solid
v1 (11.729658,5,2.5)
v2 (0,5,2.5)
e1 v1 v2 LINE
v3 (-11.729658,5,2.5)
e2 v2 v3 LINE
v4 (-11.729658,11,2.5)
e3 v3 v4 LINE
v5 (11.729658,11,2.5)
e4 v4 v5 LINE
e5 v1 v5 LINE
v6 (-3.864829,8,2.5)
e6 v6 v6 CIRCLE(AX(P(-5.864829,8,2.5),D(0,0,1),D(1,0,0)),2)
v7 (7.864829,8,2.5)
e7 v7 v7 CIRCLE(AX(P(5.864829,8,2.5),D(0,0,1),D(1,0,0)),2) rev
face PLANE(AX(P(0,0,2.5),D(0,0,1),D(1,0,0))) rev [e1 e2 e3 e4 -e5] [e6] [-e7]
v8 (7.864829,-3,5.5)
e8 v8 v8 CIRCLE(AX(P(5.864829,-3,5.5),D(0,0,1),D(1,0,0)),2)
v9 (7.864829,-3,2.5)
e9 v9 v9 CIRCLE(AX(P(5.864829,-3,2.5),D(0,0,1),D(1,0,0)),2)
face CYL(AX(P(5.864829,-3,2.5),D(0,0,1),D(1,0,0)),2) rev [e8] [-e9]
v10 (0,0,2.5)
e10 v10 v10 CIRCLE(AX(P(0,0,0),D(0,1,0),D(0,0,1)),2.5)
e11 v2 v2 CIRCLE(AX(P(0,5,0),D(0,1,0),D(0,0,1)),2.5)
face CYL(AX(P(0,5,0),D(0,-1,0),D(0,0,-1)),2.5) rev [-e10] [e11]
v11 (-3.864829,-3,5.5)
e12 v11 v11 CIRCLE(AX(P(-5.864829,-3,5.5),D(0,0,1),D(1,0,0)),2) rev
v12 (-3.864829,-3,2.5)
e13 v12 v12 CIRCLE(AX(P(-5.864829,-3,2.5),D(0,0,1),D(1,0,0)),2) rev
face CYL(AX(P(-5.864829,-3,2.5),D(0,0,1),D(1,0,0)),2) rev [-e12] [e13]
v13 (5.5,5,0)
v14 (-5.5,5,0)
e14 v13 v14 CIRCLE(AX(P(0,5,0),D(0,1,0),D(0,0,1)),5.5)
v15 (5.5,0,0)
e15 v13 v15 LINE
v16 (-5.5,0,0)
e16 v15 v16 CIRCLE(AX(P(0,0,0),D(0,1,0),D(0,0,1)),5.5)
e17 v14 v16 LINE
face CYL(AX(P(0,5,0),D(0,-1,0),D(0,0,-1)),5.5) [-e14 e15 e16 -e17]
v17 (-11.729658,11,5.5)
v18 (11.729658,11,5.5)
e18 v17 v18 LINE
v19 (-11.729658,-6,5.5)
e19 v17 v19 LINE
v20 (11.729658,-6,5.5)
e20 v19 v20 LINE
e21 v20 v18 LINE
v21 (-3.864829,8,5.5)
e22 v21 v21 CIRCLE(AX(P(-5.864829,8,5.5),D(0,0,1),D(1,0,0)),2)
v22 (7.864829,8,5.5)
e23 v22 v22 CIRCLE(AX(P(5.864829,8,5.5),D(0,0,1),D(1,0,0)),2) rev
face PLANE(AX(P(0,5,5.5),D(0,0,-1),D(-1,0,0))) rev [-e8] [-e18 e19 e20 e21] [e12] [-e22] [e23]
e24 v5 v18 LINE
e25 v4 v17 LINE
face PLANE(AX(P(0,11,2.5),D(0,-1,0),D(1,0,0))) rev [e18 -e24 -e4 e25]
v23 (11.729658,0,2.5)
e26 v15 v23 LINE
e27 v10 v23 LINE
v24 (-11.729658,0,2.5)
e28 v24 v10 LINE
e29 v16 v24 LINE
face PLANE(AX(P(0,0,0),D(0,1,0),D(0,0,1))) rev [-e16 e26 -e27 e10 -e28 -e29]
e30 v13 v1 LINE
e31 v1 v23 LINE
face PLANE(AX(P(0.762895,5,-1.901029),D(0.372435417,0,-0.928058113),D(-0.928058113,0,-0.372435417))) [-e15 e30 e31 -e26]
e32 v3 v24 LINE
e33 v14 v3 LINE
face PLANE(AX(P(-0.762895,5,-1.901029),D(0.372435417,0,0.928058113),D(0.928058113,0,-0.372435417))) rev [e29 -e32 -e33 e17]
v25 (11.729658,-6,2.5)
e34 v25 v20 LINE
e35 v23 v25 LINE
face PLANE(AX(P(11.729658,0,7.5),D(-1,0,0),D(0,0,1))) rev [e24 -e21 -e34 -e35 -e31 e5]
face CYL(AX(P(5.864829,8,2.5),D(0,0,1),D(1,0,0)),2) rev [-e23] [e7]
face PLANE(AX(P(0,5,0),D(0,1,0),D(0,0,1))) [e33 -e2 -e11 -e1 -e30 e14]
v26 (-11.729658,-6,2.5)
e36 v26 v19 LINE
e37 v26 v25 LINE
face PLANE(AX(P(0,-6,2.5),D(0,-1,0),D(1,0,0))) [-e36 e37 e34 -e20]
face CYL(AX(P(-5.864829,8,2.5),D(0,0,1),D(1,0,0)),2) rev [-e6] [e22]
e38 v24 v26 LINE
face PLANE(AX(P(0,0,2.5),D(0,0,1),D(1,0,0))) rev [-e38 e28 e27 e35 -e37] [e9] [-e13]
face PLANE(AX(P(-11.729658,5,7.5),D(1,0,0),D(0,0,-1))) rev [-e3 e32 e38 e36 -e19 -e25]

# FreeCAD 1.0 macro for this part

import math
import FreeCAD as App
import Part
import Sketcher

V = App.Vector
Q = App.Units.Quantity


def add_polygon(sketch, points):
    """Adds a closed chain of lines whose ends are joined by coincident constraints."""
    first, n = sketch.GeometryCount, len(points)
    for a, b in zip(points, points[1:] + points[:1]):
        sketch.addGeometry(Part.LineSegment(App.Vector(*a, 0), App.Vector(*b, 0)), False)
    for i in range(n):
        sketch.addConstraint(Sketcher.Constraint("Coincident", first + i, 2, first + (i + 1) % n, 1))

doc = App.newDocument("Part")
body = doc.addObject("PartDesign::Body", "Body")

sketch1 = body.newObject("Sketcher::SketchObject", "Sketch")
sketch1.AttachmentSupport = (doc.getObject("XZ_Plane"), [""])
sketch1.MapMode = "FlatFace"
sketch1.addGeometry(Part.ArcOfCircle(Part.Circle(V(0, 0, 0), V(0, 0, 1), 5.5), math.radians(180), math.radians(360)), False)
sketch1.addGeometry(Part.LineSegment(V(-5.5, 0, 0), V(-11.7, 2.5, 0)), False)
sketch1.addGeometry(Part.LineSegment(V(-11.7, 2.5, 0), V(-25.7, 2.5, 0)), False)
sketch1.addGeometry(Part.LineSegment(V(-25.7, 2.5, 0), V(-25.7, 5.5, 0)), False)
sketch1.addGeometry(Part.LineSegment(V(-25.7, 5.5, 0), V(25.7, 5.5, 0)), False)
sketch1.addGeometry(Part.LineSegment(V(25.7, 5.5, 0), V(25.7, 2.5, 0)), False)
sketch1.addGeometry(Part.LineSegment(V(25.7, 2.5, 0), V(11.7, 2.5, 0)), False)
sketch1.addGeometry(Part.LineSegment(V(11.7, 2.5, 0), V(5.5, 0, 0)), False)
sketch1.addGeometry(Part.ArcOfCircle(Part.Circle(V(0, 0, 0), V(0, 0, 1), 2.5), math.radians(0), math.radians(90)), False)
sketch1.addGeometry(Part.ArcOfCircle(Part.Circle(V(0, 0, 0), V(0, 0, 1), 2.5), math.radians(90), math.radians(360)), False)
sketch1.addConstraint(Sketcher.Constraint("Coincident", 0, 1, 1, 1))
sketch1.addConstraint(Sketcher.Constraint("Coincident", 1, 2, 2, 1))
sketch1.addConstraint(Sketcher.Constraint("Coincident", 2, 2, 3, 1))
sketch1.addConstraint(Sketcher.Constraint("Coincident", 3, 2, 4, 1))
sketch1.addConstraint(Sketcher.Constraint("Coincident", 4, 2, 5, 1))
sketch1.addConstraint(Sketcher.Constraint("Coincident", 5, 2, 6, 1))
sketch1.addConstraint(Sketcher.Constraint("Coincident", 6, 2, 7, 1))
sketch1.addConstraint(Sketcher.Constraint("Coincident", 7, 2, 0, 2))
sketch1.addConstraint(Sketcher.Constraint("Tangent", 8, 1, 9, 2))
sketch1.addConstraint(Sketcher.Constraint("Coincident", 9, 1, 8, 2))
sketch1.addConstraint(Sketcher.Constraint("Horizontal", 2))
sketch1.addConstraint(Sketcher.Constraint("Vertical", 3))
sketch1.addConstraint(Sketcher.Constraint("Horizontal", 4))
sketch1.addConstraint(Sketcher.Constraint("Vertical", 5))
sketch1.addConstraint(Sketcher.Constraint("Horizontal", 6))
sketch1.addConstraint(Sketcher.Constraint("Coincident", 0, 3, -1, 1))
sketch1.addConstraint(Sketcher.Constraint("Coincident", 8, 3, -1, 1))
sketch1.addConstraint(Sketcher.Constraint("Symmetric", 2, 2, 5, 2, -2))
sketch1.addConstraint(Sketcher.Constraint("PointOnObject", 0, 1, -1))
sketch1.addConstraint(Sketcher.Constraint("PointOnObject", 7, 2, -1))
sketch1.addConstraint(Sketcher.Constraint("PointOnObject", 8, 1, -1))
sketch1.addConstraint(Sketcher.Constraint("PointOnObject", 9, 1, -2))
sketch1.addConstraint(Sketcher.Constraint("Horizontal", 6, 2, 9, 1))
sketch1.addConstraint(Sketcher.Constraint("Equal", 2, 6))
sketch1.addConstraint(Sketcher.Constraint("Radius", 0, Q("5.5 mm")))
sketch1.addConstraint(Sketcher.Constraint("Radius", 8, Q("2.5 mm")))
sketch1.addConstraint(Sketcher.Constraint("DistanceY", 3, 1, 3, 2, Q("3 mm")))
sketch1.addConstraint(Sketcher.Constraint("DistanceX", 2, 2, 2, 1, Q("14.012374 mm")))
sketch1.addConstraint(Sketcher.Constraint("DistanceX", 4, 1, 4, 2, Q("51.484064 mm")))
pad1 = body.newObject("PartDesign::Pad", "Pad")
pad1.Profile = sketch1
pad1.Length = 5
pad1.Reversed = True

sketch2 = body.newObject("Sketcher::SketchObject", "Sketch001")
sketch2.AttachmentSupport = (doc.getObject("XY_Plane"), [""])
sketch2.MapMode = "FlatFace"
sketch2.AttachmentOffset = App.Placement(V(0, 0, 2.5), App.Rotation())
add_polygon(sketch2, [(25.7, 0), (21.7, 0), (21.7, 5), (25.7, 5)])
add_polygon(sketch2, [(-21.7, 0), (-25.7, 0), (-25.7, 5), (-21.7, 5)])
sketch2.addGeometry(Part.Circle(V(-16.7, 2.5, 0), V(0, 0, 1), 2), False)
sketch2.addGeometry(Part.Circle(V(16.7, 2.5, 0), V(0, 0, 1), 2), False)
sketch2.addConstraint(Sketcher.Constraint("Horizontal", 0))
sketch2.addConstraint(Sketcher.Constraint("Vertical", 1))
sketch2.addConstraint(Sketcher.Constraint("Horizontal", 2))
sketch2.addConstraint(Sketcher.Constraint("Vertical", 3))
sketch2.addConstraint(Sketcher.Constraint("Horizontal", 4))
sketch2.addConstraint(Sketcher.Constraint("Vertical", 5))
sketch2.addConstraint(Sketcher.Constraint("Horizontal", 6))
sketch2.addConstraint(Sketcher.Constraint("Vertical", 7))
sketch2.addConstraint(Sketcher.Constraint("Equal", 8, 9))
sketch2.addConstraint(Sketcher.Constraint("Symmetric", 3, 2, 4, 2, -1, 1))
sketch2.addConstraint(Sketcher.Constraint("Symmetric", 8, 3, 9, 3, -2))
sketch2.addConstraint(Sketcher.Constraint("Symmetric", 1, 2, 6, 2, -2))
sketch2.addConstraint(Sketcher.Constraint("PointOnObject", 0, 2, -1))
sketch2.addConstraint(Sketcher.Constraint("Diameter", 8, Q("4 mm")))
sketch2.addConstraint(Sketcher.Constraint("DistanceY", 1, 1, 1, 2, Q("5 mm")))
sketch2.addConstraint(Sketcher.Constraint("DistanceX", 9, 3, 0, 2, Q("5 mm")))
sketch2.addConstraint(Sketcher.Constraint("DistanceY", -1, 1, 8, 3, Q("2.5 mm")))
sketch2.addConstraint(Sketcher.Constraint("DistanceX", 0, 2, 0, 1, Q("4.012374 mm")))
sketch2.addConstraint(Sketcher.Constraint("DistanceX", 8, 3, -1, 1, Q("16.729658 mm")))
pocket1 = body.newObject("PartDesign::Pocket", "Pocket")
pocket1.Profile = sketch2
pocket1.Length = 5
pocket1.Reversed = True

sketch3 = body.newObject("Sketcher::SketchObject", "Sketch002")
sketch3.AttachmentSupport = (doc.getObject("XY_Plane"), [""])
sketch3.MapMode = "FlatFace"
sketch3.AttachmentOffset = App.Placement(V(0, 0, 2.5), App.Rotation())
add_polygon(sketch3, [(22, 5), (22, 0), (12, 0), (12, 5)])
add_polygon(sketch3, [(-12, 5), (-12, 0), (-22, 0), (-22, 5)])
sketch3.addConstraint(Sketcher.Constraint("Vertical", 0))
sketch3.addConstraint(Sketcher.Constraint("Horizontal", 1))
sketch3.addConstraint(Sketcher.Constraint("Vertical", 2))
sketch3.addConstraint(Sketcher.Constraint("Horizontal", 3))
sketch3.addConstraint(Sketcher.Constraint("Vertical", 4))
sketch3.addConstraint(Sketcher.Constraint("Horizontal", 5))
sketch3.addConstraint(Sketcher.Constraint("Vertical", 6))
sketch3.addConstraint(Sketcher.Constraint("Horizontal", 7))
sketch3.addConstraint(Sketcher.Constraint("Symmetric", 1, 2, 4, 2, -1, 1))
sketch3.addConstraint(Sketcher.Constraint("Symmetric", 0, 2, 5, 2, -2))
sketch3.addConstraint(Sketcher.Constraint("Horizontal", 3, 2, 6, 2))
sketch3.addConstraint(Sketcher.Constraint("DistanceX", 1, 2, 1, 1, Q("10 mm")))
sketch3.addConstraint(Sketcher.Constraint("DistanceY", 0, 2, 0, 1, Q("5 mm")))
sketch3.addConstraint(Sketcher.Constraint("DistanceX", -1, 1, 0, 2, Q("21.729658 mm")))
pocket2 = body.newObject("PartDesign::Pocket", "Pocket001")
pocket2.Profile = sketch3
pocket2.Length = 5
pocket2.Reversed = True

sketch4 = body.newObject("Sketcher::SketchObject", "Sketch003")
sketch4.AttachmentSupport = (doc.getObject("XY_Plane"), [""])
sketch4.MapMode = "FlatFace"
sketch4.AttachmentOffset = App.Placement(V(0, 0, 5.5), App.Rotation())
add_polygon(sketch4, [(11.7, 11), (-11.7, 11), (-11.7, 5), (11.7, 5)])
sketch4.addGeometry(Part.Circle(V(5.9, 8, 0), V(0, 0, 1), 2), False)
sketch4.addGeometry(Part.Circle(V(-5.9, 8, 0), V(0, 0, 1), 2), False)
add_polygon(sketch4, [(11.7, 0), (-11.7, 0), (-11.7, -6), (11.7, -6)])
sketch4.addGeometry(Part.Circle(V(5.9, -3, 0), V(0, 0, 1), 2), False)
sketch4.addGeometry(Part.Circle(V(-5.9, -3, 0), V(0, 0, 1), 2), False)
sketch4.addConstraint(Sketcher.Constraint("Horizontal", 0))
sketch4.addConstraint(Sketcher.Constraint("Vertical", 1))
sketch4.addConstraint(Sketcher.Constraint("Horizontal", 2))
sketch4.addConstraint(Sketcher.Constraint("Vertical", 3))
sketch4.addConstraint(Sketcher.Constraint("Horizontal", 6))
sketch4.addConstraint(Sketcher.Constraint("Vertical", 7))
sketch4.addConstraint(Sketcher.Constraint("Horizontal", 8))
sketch4.addConstraint(Sketcher.Constraint("Vertical", 9))
sketch4.addConstraint(Sketcher.Constraint("Equal", 4, 5))
sketch4.addConstraint(Sketcher.Constraint("Equal", 5, 10))
sketch4.addConstraint(Sketcher.Constraint("Equal", 10, 11))
sketch4.addConstraint(Sketcher.Constraint("Symmetric", 6, 2, 9, 2, -1, 1))
sketch4.addConstraint(Sketcher.Constraint("Symmetric", 4, 3, 5, 3, -2))
sketch4.addConstraint(Sketcher.Constraint("Symmetric", 10, 3, 11, 3, -2))
sketch4.addConstraint(Sketcher.Constraint("Vertical", 4, 3, 10, 3))
sketch4.addConstraint(Sketcher.Constraint("Vertical", 1, 2, 6, 2))
sketch4.addConstraint(Sketcher.Constraint("Vertical", 3, 2, 8, 2))
sketch4.addConstraint(Sketcher.Constraint("Equal", 3, 7))
sketch4.addConstraint(Sketcher.Constraint("Diameter", 4, Q("4 mm")))
sketch4.addConstraint(Sketcher.Constraint("DistanceY", 1, 2, 1, 1, Q("6 mm")))
sketch4.addConstraint(Sketcher.Constraint("DistanceY", -1, 1, 4, 3, Q("8 mm")))
sketch4.addConstraint(Sketcher.Constraint("DistanceY", 10, 3, -1, 1, Q("3 mm")))
sketch4.addConstraint(Sketcher.Constraint("DistanceY", -1, 1, 0, 2, Q("11 mm")))
sketch4.addConstraint(Sketcher.Constraint("DistanceX", 0, 2, 0, 1, Q("23.459316 mm")))
sketch4.addConstraint(Sketcher.Constraint("DistanceX", -1, 1, 4, 3, Q("5.864829 mm")))
pad2 = body.newObject("PartDesign::Pad", "Pad001")
pad2.Profile = sketch4
pad2.Length = 3
pad2.Reversed = True

doc.recompute()
